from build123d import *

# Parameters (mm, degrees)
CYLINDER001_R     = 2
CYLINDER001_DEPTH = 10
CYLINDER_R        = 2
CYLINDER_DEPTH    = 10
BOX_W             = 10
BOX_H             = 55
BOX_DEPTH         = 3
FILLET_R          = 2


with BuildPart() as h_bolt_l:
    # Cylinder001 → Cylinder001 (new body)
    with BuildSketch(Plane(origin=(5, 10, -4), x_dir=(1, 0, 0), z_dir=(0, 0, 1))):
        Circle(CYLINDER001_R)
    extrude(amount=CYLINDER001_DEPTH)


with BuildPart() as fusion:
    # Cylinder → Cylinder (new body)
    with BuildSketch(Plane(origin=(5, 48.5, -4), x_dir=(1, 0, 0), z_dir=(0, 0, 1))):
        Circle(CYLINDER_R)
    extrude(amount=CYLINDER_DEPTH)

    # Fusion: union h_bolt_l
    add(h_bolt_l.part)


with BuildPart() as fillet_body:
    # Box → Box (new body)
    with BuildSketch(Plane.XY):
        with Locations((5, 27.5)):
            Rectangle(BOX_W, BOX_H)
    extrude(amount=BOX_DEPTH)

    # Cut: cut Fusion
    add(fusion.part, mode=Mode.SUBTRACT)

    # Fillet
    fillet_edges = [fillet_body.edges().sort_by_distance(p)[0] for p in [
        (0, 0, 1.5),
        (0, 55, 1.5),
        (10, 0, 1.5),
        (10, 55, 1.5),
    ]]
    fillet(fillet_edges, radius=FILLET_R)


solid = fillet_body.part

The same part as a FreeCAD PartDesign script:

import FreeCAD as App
import Part
import Sketcher
from FreeCAD import Vector
Q = App.Units.Quantity


def edges_at(feature, points):
    """Names of the edges that pass closest to the given points."""
    edges = feature.Shape.Edges
    near = lambda p: min(range(len(edges)), key=lambda i: edges[i].distToShape(Part.Vertex(*p))[0])
    return sorted({f"Edge{near(p) + 1}" for p in points})

doc = App.newDocument("Part")
body = doc.addObject("PartDesign::Body", "Body")

sketch1 = body.newObject("Sketcher::SketchObject", "Sketch")
sketch1.AttachmentSupport = (doc.getObject("XY_Plane"), [""])
sketch1.MapMode = "FlatFace"
sketch1.AttachmentOffset = App.Placement(Vector(0, 0, -4), App.Rotation())
sketch1.addGeometry(Part.Circle(Vector(5, 10, 0), Vector(0, 0, 1), 2), False)
sketch1.addConstraint([
    Sketcher.Constraint("Diameter", 0, Q("4 mm")),
    Sketcher.Constraint("DistanceX", -1, 1, 0, 3, Q("5 mm")),
    Sketcher.Constraint("DistanceY", -1, 1, 0, 3, Q("10 mm")),
])
pad1 = body.newObject("PartDesign::Pad", "Pad")
pad1.Profile = sketch1
pad1.Length = 10
body2 = doc.addObject("PartDesign::Body", "Body001")
body2.AllowCompound = True

sketch2 = body2.newObject("Sketcher::SketchObject", "Sketch001")
sketch2.AttachmentSupport = (doc.getObject("XY_Plane001"), [""])
sketch2.MapMode = "FlatFace"
sketch2.AttachmentOffset = App.Placement(Vector(0, 0, -4), App.Rotation())
sketch2.addGeometry(Part.Circle(Vector(5, 48.5, 0), Vector(0, 0, 1), 2), False)
sketch2.addConstraint([
    Sketcher.Constraint("Diameter", 0, Q("4 mm")),
    Sketcher.Constraint("DistanceX", -1, 1, 0, 3, Q("5 mm")),
    Sketcher.Constraint("DistanceY", -1, 1, 0, 3, Q("48.5 mm")),
])
pad2 = body2.newObject("PartDesign::Pad", "Pad001")
pad2.Profile = sketch2
pad2.Length = 10
doc.recompute()

boolean = body2.newObject("PartDesign::Boolean", "Boolean")
boolean.Type = "Fuse"
boolean.addObjects([body])
body3 = doc.addObject("PartDesign::Body", "Body002")

sketch3 = body3.newObject("Sketcher::SketchObject", "Sketch002")
sketch3.AttachmentSupport = (doc.getObject("XY_Plane002"), [""])
sketch3.MapMode = "FlatFace"
sketch3.addGeometry([
    Part.LineSegment(Vector(0, 55, 0), Vector(0, 0, 0)),
    Part.LineSegment(Vector(0, 0, 0), Vector(10, 0, 0)),
    Part.LineSegment(Vector(10, 0, 0), Vector(10, 55, 0)),
    Part.LineSegment(Vector(10, 55, 0), Vector(0, 55, 0)),
], False)
sketch3.addConstraint([
    Sketcher.Constraint("Coincident", 0, 2, 1, 1),
    Sketcher.Constraint("Coincident", 1, 2, 2, 1),
    Sketcher.Constraint("Coincident", 2, 2, 3, 1),
    Sketcher.Constraint("Coincident", 3, 2, 0, 1),
    Sketcher.Constraint("Vertical", 0),
    Sketcher.Constraint("Horizontal", 1),
    Sketcher.Constraint("Vertical", 2),
    Sketcher.Constraint("Horizontal", 3),
    Sketcher.Constraint("Coincident", 0, 2, -1, 1),
    Sketcher.Constraint("DistanceX", 1, 1, 1, 2, Q("10 mm")),
    Sketcher.Constraint("DistanceY", 0, 2, 0, 1, Q("55 mm")),
])
pad3 = body3.newObject("PartDesign::Pad", "Pad002")
pad3.Profile = sketch3
pad3.Length = 3
doc.recompute()

boolean2 = body3.newObject("PartDesign::Boolean", "Boolean001")
boolean2.Type = "Cut"
boolean2.addObjects([body2])
doc.recompute()

fillet = body3.newObject("PartDesign::Fillet", "Fillet")
fillet.Base = (boolean2, edges_at(boolean2, [
    (0, 0, 1.5),
    (0, 55, 1.5),
    (10, 0, 1.5),
    (10, 55, 1.5),
]))
fillet.Radius = 2

doc.recompute()
